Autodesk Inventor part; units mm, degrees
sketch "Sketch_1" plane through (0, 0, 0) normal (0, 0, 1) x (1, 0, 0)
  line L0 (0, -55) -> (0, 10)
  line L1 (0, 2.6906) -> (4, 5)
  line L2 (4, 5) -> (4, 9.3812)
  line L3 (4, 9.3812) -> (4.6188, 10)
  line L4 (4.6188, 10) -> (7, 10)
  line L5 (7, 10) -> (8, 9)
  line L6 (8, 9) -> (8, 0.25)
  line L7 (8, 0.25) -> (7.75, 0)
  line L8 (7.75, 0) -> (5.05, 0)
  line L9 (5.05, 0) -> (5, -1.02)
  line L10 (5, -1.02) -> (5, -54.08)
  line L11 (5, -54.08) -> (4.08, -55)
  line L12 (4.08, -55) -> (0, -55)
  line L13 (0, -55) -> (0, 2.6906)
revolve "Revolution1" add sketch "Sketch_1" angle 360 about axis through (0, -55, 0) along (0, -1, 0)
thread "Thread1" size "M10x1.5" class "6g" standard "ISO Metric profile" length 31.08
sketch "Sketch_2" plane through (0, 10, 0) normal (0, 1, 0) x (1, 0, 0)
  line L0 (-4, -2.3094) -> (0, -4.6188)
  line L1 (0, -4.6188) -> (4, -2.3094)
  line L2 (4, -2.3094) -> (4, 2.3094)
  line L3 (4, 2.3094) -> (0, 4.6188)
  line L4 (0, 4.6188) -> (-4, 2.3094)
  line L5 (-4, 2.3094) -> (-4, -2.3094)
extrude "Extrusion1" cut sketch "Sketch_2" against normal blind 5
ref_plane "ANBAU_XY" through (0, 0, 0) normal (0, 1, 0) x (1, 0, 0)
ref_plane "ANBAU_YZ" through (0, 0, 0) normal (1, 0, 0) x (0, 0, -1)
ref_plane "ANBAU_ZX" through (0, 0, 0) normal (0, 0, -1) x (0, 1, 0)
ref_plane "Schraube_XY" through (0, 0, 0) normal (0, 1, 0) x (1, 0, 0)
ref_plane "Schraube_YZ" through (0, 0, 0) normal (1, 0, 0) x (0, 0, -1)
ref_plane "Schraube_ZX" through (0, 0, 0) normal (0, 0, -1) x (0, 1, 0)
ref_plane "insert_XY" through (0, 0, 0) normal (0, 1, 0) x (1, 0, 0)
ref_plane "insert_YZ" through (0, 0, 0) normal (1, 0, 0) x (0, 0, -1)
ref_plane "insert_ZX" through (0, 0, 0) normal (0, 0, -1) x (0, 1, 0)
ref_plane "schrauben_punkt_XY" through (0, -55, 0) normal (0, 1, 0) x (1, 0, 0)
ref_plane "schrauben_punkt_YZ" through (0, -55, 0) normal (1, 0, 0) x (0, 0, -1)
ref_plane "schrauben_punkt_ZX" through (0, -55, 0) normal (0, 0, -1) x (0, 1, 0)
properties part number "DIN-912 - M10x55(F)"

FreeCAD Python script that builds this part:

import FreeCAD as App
import Part
import Sketcher
from FreeCAD import Vector
Q = App.Units.Quantity


def add_polygon(sketch, points):
    """Adds a closed chain of lines whose ends are joined by coincident constraints."""
    first, n = sketch.GeometryCount, len(points)
    for a, b in zip(points, points[1:] + points[:1]):
        sketch.addGeometry(Part.LineSegment(App.Vector(*a, 0), App.Vector(*b, 0)), False)
    for i in range(n):
        sketch.addConstraint(Sketcher.Constraint("Coincident", first + i, 2, first + (i + 1) % n, 1))

doc = App.newDocument("Part")
body = doc.addObject("PartDesign::Body", "Body")

# Sketch on XY plane
sketch1 = body.newObject("Sketcher::SketchObject", "Sketch")
sketch1.AttachmentSupport = (doc.getObject("XY_Plane"), [""])
sketch1.MapMode = "FlatFace"
add_polygon(sketch1, [(0, 2.69), (0, -55), (4.08, -55), (5, -54.08), (5, -1.02), (5.05, 0), (7.75, 0), (8, 0.25), (8, 9), (7, 10), (4.62, 10), (4, 9.38), (4, 5)])  # lines 0-12
sketch1.addConstraint([
    Sketcher.Constraint("Vertical", 0),
    Sketcher.Constraint("Horizontal", 1),
    Sketcher.Constraint("Vertical", 3),
    Sketcher.Constraint("Horizontal", 5),
    Sketcher.Constraint("Vertical", 7),
    Sketcher.Constraint("Horizontal", 9),
    Sketcher.Constraint("Vertical", 11),
    Sketcher.Constraint("PointOnObject", 0, 2, -2),
    Sketcher.Constraint("PointOnObject", 4, 2, -1),
    Sketcher.Constraint("Parallel", 2, 6),
    Sketcher.Constraint("Perpendicular", 6, 8),
    Sketcher.Constraint("Perpendicular", 8, 10),
    Sketcher.Constraint("Angle", 2, Q("45 deg")),
    Sketcher.Constraint("Angle", 12, Q("-150 deg")),
    Sketcher.Constraint("DistanceX", 5, 1, 5, 2, Q("2.7 mm")),
    Sketcher.Constraint("DistanceY", 0, 2, -1, 1, Q("55 mm")),
    Sketcher.Constraint("DistanceX", -1, 1, 2, 2, Q("5 mm")),
    Sketcher.Constraint("DistanceX", -1, 1, 6, 2, Q("8 mm")),
    Sketcher.Constraint("DistanceY", -1, 1, 7, 2, Q("9 mm")),
    Sketcher.Constraint("DistanceX", -1, 1, 8, 2, Q("7 mm")),
    Sketcher.Constraint("DistanceX", -1, 1, 10, 2, Q("4 mm")),
    Sketcher.Constraint("DistanceY", -1, 1, 11, 2, Q("5 mm")),
    Sketcher.Constraint("DistanceX", 1, 1, 1, 2, Q("4.08 mm")),
    Sketcher.Constraint("DistanceY", 3, 1, 3, 2, Q("53.06 mm")),
    Sketcher.Constraint("DistanceY", 7, 1, 7, 2, Q("8.75 mm")),
    Sketcher.Constraint("Distance", 10, Q("0.875 mm")),
])
revolution = body.newObject("PartDesign::Revolution", "Revolution")
revolution.Profile = sketch1
revolution.ReferenceAxis = (sketch1, ["V_Axis"])
revolution.Angle = 360

# Sketch on XZ plane
sketch2 = body.newObject("Sketcher::SketchObject", "Sketch001")
sketch2.AttachmentSupport = (doc.getObject("XZ_Plane"), [""])
sketch2.MapMode = "FlatFace"
sketch2.AttachmentOffset = App.Placement(Vector(0, 0, -10), App.Rotation())
add_polygon(sketch2, [(-4, -2.3), (-4, 2.3), (0, 4.6), (4, 2.3), (4, -2.3), (0, -4.6)])  # lines 0-5
sketch2.addConstraint([
    Sketcher.Constraint("Vertical", 0),
    Sketcher.Constraint("Vertical", 3),
    Sketcher.Constraint("Symmetric", 0, 2, 3, 2, -1, 1),
    Sketcher.Constraint("Symmetric", 1, 2, 4, 2, -1, 1),
    Sketcher.Constraint("PointOnObject", 1, 2, -2),
    Sketcher.Constraint("Parallel", 2, 5),
    Sketcher.Constraint("Horizontal", 0, 2, 2, 2),
    Sketcher.Constraint("Angle", 1, Q("30 deg")),
    Sketcher.Constraint("DistanceX", 0, 2, -1, 1, Q("4 mm")),
    Sketcher.Constraint("DistanceY", 0, 1, 0, 2, Q("4.6188 mm")),
])
pocket1 = body.newObject("PartDesign::Pocket", "Pocket")
pocket1.Profile = sketch2
pocket1.Length = 5
pocket1.Reversed = True

doc.recompute()
